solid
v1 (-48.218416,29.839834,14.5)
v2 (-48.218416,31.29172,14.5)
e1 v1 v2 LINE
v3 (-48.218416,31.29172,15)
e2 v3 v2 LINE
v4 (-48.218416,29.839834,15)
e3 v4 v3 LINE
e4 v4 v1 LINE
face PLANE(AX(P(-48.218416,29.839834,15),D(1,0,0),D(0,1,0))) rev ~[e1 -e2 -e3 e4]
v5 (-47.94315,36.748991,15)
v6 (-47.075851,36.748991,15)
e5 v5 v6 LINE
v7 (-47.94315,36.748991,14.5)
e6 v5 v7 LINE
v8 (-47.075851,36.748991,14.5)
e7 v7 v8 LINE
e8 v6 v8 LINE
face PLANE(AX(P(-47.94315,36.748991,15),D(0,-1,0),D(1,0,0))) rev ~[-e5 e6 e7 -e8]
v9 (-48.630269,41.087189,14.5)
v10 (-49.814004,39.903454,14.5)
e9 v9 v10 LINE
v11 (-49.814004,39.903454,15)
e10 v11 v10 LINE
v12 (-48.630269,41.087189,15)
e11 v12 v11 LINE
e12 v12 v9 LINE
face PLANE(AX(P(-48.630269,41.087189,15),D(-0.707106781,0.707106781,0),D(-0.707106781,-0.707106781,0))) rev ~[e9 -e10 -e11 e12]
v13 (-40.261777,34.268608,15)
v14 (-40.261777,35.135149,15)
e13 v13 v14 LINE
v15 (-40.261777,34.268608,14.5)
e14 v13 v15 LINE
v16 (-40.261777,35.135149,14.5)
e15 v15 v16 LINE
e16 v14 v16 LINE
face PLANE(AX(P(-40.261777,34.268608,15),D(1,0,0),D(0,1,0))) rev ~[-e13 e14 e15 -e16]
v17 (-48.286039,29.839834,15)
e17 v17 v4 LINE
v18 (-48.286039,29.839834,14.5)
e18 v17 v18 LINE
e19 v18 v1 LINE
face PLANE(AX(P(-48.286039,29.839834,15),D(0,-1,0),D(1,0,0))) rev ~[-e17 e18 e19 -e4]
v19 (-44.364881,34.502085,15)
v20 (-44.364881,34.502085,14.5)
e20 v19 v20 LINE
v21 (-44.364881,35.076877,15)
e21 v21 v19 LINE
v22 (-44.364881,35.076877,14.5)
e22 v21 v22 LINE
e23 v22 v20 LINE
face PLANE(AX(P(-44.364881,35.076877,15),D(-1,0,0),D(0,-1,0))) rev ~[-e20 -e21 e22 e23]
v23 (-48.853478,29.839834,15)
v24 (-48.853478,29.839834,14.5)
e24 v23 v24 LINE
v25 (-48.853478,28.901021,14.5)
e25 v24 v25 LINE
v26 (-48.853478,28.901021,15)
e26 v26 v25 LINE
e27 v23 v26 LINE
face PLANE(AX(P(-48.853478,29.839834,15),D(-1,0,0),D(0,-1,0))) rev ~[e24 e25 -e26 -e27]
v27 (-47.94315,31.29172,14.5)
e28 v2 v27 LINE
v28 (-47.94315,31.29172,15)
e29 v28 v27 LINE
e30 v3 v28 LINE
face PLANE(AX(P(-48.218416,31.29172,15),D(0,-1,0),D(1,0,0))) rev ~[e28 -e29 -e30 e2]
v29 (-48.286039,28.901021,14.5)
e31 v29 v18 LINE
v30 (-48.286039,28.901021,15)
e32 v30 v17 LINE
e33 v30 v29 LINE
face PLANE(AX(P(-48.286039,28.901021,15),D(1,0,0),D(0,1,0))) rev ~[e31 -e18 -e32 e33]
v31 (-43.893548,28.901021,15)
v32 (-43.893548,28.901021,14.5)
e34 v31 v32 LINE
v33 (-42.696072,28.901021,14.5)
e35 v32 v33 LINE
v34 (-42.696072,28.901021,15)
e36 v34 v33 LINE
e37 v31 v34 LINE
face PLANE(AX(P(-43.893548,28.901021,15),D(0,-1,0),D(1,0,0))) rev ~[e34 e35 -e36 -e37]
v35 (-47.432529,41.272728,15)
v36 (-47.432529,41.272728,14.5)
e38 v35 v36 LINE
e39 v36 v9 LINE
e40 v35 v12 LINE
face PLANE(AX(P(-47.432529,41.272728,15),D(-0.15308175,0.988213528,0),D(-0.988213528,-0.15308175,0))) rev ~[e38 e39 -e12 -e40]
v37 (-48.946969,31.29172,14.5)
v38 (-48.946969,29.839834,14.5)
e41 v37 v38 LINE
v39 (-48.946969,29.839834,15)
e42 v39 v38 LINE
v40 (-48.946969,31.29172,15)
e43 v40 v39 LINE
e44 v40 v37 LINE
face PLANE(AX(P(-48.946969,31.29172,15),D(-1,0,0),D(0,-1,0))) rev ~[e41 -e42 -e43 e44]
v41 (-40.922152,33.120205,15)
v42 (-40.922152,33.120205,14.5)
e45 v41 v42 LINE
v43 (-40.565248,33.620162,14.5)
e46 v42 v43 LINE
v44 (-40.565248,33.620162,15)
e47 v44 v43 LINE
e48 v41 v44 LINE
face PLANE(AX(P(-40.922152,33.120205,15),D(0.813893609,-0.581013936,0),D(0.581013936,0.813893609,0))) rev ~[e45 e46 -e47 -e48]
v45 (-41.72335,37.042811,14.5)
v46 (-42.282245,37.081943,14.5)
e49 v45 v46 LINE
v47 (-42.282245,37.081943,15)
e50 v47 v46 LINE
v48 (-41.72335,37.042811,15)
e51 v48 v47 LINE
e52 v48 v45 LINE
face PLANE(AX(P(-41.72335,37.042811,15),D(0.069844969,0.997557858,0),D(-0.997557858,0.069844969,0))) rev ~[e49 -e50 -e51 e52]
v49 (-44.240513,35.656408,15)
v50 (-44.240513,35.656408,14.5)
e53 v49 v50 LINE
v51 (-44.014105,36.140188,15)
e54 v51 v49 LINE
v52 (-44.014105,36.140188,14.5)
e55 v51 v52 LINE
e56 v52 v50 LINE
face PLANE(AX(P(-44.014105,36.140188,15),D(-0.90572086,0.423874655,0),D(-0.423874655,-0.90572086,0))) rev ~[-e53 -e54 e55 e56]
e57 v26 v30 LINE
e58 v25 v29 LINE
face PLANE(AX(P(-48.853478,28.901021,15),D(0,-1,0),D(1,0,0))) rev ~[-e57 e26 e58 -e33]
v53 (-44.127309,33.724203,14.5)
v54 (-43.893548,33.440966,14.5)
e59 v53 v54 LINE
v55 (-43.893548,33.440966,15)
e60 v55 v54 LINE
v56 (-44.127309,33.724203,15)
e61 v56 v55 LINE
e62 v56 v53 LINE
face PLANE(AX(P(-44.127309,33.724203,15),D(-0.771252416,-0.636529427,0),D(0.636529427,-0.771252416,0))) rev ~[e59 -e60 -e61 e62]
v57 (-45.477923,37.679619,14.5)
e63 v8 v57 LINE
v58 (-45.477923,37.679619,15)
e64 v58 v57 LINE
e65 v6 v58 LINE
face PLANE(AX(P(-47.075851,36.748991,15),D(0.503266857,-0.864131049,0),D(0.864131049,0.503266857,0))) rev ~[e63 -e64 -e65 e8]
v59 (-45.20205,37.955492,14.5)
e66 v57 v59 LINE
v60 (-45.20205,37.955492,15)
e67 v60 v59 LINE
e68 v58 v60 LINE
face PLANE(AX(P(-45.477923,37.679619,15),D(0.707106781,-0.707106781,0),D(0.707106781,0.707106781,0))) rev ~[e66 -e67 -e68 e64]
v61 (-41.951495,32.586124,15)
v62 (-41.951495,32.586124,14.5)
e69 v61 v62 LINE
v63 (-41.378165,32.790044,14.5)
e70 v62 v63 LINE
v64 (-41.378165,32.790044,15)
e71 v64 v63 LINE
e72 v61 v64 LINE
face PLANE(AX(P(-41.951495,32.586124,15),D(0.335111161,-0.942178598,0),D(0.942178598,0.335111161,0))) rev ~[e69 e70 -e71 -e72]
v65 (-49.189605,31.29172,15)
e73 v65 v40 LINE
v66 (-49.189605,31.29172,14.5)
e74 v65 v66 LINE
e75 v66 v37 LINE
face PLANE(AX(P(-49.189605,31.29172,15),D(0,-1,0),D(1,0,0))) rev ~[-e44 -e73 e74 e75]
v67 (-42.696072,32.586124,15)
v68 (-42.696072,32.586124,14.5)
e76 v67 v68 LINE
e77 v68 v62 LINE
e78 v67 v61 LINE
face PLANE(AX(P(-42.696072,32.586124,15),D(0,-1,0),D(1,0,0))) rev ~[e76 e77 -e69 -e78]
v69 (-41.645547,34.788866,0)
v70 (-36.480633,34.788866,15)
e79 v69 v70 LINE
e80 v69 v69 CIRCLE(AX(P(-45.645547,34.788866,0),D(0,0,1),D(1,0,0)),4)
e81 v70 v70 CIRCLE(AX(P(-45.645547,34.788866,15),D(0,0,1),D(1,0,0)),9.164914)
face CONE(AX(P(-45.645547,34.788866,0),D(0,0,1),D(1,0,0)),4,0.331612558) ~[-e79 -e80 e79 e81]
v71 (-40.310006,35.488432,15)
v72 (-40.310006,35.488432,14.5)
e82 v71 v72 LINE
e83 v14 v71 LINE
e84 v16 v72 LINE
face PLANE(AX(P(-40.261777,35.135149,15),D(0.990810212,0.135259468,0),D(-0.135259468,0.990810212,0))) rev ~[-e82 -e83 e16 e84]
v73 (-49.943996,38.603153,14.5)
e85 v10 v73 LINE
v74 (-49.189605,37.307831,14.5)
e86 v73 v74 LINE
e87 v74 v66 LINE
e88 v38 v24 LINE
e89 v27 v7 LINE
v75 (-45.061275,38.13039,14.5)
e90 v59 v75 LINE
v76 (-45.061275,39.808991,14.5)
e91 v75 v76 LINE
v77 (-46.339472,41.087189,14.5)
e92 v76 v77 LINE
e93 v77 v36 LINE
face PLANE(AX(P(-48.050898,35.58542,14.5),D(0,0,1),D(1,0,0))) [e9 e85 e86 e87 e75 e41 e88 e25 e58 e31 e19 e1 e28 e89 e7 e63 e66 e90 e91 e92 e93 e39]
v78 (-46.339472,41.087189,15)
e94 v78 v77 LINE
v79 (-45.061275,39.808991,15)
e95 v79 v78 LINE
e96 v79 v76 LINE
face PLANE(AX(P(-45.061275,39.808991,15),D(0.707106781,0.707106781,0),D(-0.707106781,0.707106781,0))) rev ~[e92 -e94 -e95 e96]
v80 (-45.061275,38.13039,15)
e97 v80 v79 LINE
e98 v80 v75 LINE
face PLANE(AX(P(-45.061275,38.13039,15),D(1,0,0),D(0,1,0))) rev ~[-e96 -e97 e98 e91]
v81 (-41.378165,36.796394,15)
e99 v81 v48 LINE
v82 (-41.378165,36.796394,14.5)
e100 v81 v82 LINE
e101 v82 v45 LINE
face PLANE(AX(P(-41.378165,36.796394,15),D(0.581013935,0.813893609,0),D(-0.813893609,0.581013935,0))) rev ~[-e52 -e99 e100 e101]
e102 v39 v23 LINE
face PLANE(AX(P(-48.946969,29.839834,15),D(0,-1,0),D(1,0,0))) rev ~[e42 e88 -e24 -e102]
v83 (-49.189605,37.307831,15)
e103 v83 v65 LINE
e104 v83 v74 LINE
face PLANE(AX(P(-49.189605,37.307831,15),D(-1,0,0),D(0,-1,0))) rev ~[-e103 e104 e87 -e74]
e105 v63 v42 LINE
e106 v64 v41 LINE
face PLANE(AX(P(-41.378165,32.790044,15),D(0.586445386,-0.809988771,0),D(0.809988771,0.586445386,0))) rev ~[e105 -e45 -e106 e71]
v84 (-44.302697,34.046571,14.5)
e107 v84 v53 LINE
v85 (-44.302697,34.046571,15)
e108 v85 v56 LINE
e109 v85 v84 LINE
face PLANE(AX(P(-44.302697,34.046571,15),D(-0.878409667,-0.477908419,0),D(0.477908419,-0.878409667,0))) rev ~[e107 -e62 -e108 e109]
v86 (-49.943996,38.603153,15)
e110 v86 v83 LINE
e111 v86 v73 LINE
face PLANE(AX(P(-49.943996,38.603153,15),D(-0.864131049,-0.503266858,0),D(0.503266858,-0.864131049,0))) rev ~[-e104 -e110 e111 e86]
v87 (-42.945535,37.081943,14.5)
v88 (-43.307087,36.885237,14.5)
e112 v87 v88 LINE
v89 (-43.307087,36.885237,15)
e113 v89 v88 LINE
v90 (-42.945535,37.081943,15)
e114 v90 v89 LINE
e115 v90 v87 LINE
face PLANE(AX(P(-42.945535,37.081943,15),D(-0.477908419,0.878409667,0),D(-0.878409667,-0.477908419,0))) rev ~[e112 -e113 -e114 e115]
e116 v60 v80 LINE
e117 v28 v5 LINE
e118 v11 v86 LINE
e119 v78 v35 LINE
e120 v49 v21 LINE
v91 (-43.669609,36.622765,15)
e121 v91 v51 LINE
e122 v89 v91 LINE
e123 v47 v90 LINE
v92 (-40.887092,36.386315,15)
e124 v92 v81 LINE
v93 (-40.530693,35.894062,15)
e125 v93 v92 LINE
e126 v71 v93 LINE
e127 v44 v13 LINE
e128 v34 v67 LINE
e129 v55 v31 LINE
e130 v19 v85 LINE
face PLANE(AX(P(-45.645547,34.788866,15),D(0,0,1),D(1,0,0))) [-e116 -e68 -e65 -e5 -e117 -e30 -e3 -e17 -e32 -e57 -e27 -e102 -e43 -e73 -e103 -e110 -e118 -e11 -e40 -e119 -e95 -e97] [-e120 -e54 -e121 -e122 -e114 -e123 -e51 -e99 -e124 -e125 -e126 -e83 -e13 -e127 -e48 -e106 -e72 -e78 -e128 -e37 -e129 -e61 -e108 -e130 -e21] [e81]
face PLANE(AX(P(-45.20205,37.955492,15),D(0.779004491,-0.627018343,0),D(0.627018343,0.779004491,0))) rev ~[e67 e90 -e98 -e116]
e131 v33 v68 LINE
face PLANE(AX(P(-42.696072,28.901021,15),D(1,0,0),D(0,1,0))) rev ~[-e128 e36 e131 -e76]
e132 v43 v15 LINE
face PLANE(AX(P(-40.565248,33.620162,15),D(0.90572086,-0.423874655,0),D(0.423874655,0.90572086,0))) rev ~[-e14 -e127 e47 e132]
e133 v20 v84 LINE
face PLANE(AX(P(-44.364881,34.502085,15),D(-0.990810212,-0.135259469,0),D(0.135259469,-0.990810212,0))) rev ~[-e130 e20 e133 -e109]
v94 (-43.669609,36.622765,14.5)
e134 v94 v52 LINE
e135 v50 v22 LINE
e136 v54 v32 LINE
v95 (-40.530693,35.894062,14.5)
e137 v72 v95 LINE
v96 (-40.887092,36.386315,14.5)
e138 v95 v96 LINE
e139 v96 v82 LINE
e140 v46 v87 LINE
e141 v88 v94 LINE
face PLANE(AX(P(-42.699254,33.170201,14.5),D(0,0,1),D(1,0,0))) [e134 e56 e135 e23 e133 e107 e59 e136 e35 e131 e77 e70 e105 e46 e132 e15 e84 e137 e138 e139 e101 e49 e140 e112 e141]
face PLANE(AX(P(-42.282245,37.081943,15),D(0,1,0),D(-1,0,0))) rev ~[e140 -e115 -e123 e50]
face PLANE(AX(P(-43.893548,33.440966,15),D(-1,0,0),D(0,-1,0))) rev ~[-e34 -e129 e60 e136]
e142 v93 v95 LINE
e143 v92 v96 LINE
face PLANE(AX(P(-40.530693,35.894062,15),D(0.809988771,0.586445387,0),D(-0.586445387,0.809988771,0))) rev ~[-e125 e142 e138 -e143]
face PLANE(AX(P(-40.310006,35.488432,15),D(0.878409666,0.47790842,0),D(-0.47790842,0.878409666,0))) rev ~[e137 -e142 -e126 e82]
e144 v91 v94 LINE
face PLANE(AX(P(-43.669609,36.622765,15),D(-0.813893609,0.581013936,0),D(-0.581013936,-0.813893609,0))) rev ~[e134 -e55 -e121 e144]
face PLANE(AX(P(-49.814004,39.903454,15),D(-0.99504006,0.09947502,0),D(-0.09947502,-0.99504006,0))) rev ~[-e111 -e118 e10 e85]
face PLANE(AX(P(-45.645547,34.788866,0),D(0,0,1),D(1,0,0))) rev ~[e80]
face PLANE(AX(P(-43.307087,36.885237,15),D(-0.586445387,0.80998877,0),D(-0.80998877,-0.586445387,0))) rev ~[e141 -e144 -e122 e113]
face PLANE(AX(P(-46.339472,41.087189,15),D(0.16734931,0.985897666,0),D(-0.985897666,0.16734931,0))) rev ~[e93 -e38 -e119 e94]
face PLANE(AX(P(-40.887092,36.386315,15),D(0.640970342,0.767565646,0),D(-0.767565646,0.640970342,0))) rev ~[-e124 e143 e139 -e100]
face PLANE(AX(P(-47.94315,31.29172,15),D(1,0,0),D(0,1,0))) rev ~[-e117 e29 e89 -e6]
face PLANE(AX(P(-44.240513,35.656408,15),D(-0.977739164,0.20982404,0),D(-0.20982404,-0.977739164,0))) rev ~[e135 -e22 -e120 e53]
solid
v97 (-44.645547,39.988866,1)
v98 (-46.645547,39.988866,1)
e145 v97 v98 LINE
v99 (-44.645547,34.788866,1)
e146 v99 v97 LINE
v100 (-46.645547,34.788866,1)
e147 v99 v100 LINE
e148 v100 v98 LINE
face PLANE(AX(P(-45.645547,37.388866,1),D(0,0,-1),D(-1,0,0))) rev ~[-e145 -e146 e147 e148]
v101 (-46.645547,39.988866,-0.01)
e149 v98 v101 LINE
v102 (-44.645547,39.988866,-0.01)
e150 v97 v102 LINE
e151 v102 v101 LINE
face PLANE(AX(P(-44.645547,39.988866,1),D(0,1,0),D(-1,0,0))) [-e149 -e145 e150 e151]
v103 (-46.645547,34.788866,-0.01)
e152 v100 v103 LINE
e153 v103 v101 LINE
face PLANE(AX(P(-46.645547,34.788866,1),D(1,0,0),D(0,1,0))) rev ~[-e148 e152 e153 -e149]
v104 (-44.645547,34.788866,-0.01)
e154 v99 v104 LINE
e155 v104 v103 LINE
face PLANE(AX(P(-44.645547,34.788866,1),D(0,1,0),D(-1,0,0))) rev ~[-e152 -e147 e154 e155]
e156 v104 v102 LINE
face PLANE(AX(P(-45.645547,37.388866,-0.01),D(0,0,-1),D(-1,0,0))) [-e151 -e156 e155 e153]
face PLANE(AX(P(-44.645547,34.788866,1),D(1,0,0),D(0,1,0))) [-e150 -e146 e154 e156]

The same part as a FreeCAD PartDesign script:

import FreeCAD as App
import Part
import Sketcher
from FreeCAD import Vector
Q = App.Units.Quantity


def faces_at(feature, points):
    """Names of the faces that lie closest to the given points."""
    faces = feature.Shape.Faces
    near = lambda p: min(range(len(faces)), key=lambda i: faces[i].distToShape(Part.Vertex(*p))[0])
    return sorted({f"Face{near(p) + 1}" for p in points})


def add_polygon(sketch, points):
    """Adds a closed chain of lines whose ends are joined by coincident constraints."""
    first, n = sketch.GeometryCount, len(points)
    for a, b in zip(points, points[1:] + points[:1]):
        sketch.addGeometry(Part.LineSegment(App.Vector(*a, 0), App.Vector(*b, 0)), False)
    for i in range(n):
        sketch.addConstraint(Sketcher.Constraint("Coincident", first + i, 2, first + (i + 1) % n, 1))

doc = App.newDocument("Part")
params = doc.addObject("Spreadsheet::Sheet", "Params")
for row, (alias, value) in enumerate([
    ("sketch1_diameter", "8 mm"),
    ("pad1_length", "15 mm"),
    ("draft_angle", "19 deg"),
    ("pocket1_length", "0.5 mm"),
    ("sketch3_width", "2 mm"),
    ("sketch3_height", "5.2 mm"),
    ("pad2_length", "0.01 mm"),
    ("pad2_length2", "1 mm"),
], start=1):
    params.set(f"A{row}", alias)
    params.set(f"B{row}", "=" + value)
    params.setAlias(f"B{row}", alias)

body = doc.addObject("PartDesign::Body", "Body")

sketch1 = body.newObject("Sketcher::SketchObject", "Sketch")
sketch1.AttachmentSupport = (doc.getObject("XY_Plane"), [""])
sketch1.MapMode = "FlatFace"
sketch1.addGeometry(Part.Circle(Vector(-45.645547, 34.788866, 0), Vector(0, 0, 1), 4), False)
sketch1.addConstraint([
    Sketcher.Constraint("Diameter", 0, Q("8 mm")),
    Sketcher.Constraint("DistanceX", 0, 3, -1, 1, Q("45.645547 mm")),
    Sketcher.Constraint("DistanceY", -1, 1, 0, 3, Q("34.788866 mm")),
])
sketch1.setExpression("Constraints[0]", "Params.sketch1_diameter")
pad1 = body.newObject("PartDesign::Pad", "Pad")
pad1.Profile = sketch1
pad1.setExpression("Length", "Params.pad1_length")
doc.recompute()

draft = body.newObject("PartDesign::Draft", "Draft")
draft.Base = (pad1, faces_at(pad1, [(-49.646, 34.789, 7.5)]))
draft.NeutralPlane = (doc.getObject("XY_Plane"), [""])
draft.setExpression("Angle", "Params.draft_angle")
draft.Reversed = True

sketch2 = body.newObject("Sketcher::SketchObject", "Sketch001")
sketch2.AttachmentSupport = (doc.getObject("XY_Plane"), [""])
sketch2.MapMode = "FlatFace"
sketch2.AttachmentOffset = App.Placement(Vector(0, 0, 15), App.Rotation())
add_polygon(sketch2, [(-49.943996, 38.603153), (-49.189605, 37.307831), (-49.189605, 31.29172), (-48.946969, 31.29172), (-48.946969, 29.839834), (-48.853478, 29.839834), (-48.853478, 28.901021), (-48.286039, 28.901021), (-48.286039, 29.839834), (-48.218416, 29.839834), (-48.218416, 31.29172), (-47.94315, 31.29172), (-47.94315, 36.748991), (-47.075851, 36.748991), (-45.477923, 37.679619), (-45.20205, 37.955492), (-45.061275, 38.13039), (-45.061275, 39.808991), (-46.339472, 41.087189), (-47.432529, 41.272728), (-48.630269, 41.087189), (-49.814004, 39.903454)])
add_polygon(sketch2, [(-42.696072, 28.901021), (-42.696072, 32.586124), (-41.951495, 32.586124), (-41.378165, 32.790044), (-40.922152, 33.120205), (-40.565248, 33.620162), (-40.261777, 34.268608), (-40.261777, 35.135149), (-40.310006, 35.488432), (-40.530693, 35.894062), (-40.887092, 36.386315), (-41.378165, 36.796394), (-41.72335, 37.042811), (-42.282245, 37.081943), (-42.945535, 37.081943), (-43.307087, 36.885237), (-43.669609, 36.622765), (-44.014105, 36.140188), (-44.240513, 35.656408), (-44.364881, 35.076877), (-44.364881, 34.502085), (-44.302697, 34.046571), (-44.127309, 33.724203), (-43.893548, 33.440966), (-43.893548, 28.901021)])
sketch2.addConstraint([
    Sketcher.Constraint("Vertical", 1),
    Sketcher.Constraint("Horizontal", 2),
    Sketcher.Constraint("Vertical", 3),
    Sketcher.Constraint("Horizontal", 4),
    Sketcher.Constraint("Vertical", 5),
    Sketcher.Constraint("Horizontal", 6),
    Sketcher.Constraint("Vertical", 7),
    Sketcher.Constraint("Horizontal", 8),
    Sketcher.Constraint("Vertical", 9),
    Sketcher.Constraint("Horizontal", 10),
    Sketcher.Constraint("Vertical", 11),
    Sketcher.Constraint("Horizontal", 12),
    Sketcher.Constraint("Vertical", 16),
    Sketcher.Constraint("Vertical", 22),
    Sketcher.Constraint("Horizontal", 23),
    Sketcher.Constraint("Vertical", 28),
    Sketcher.Constraint("Horizontal", 35),
    Sketcher.Constraint("Vertical", 41),
    Sketcher.Constraint("Vertical", 45),
    Sketcher.Constraint("Horizontal", 46),
    Sketcher.Constraint("Perpendicular", 0, 13),
    Sketcher.Constraint("Perpendicular", 14, 17),
    Sketcher.Constraint("Perpendicular", 17, 20),
    Sketcher.Constraint("Perpendicular", 25, 31),
    Sketcher.Constraint("Perpendicular", 26, 33),
    Sketcher.Constraint("Perpendicular", 30, 36),
    Sketcher.Constraint("Perpendicular", 31, 37),
    Sketcher.Constraint("Perpendicular", 33, 38),
    Sketcher.Constraint("Parallel", 27, 39),
    Sketcher.Constraint("Parallel", 29, 42),
    Sketcher.Constraint("Perpendicular", 36, 43),
    Sketcher.Constraint("Horizontal", 4, 2, 7, 2),
    Sketcher.Constraint("Horizontal", 2, 2, 9, 2),
    Sketcher.Constraint("Horizontal", 17, 2, 19, 2),
    Sketcher.Constraint("Horizontal", 6, 2, 45, 2),
    Sketcher.Constraint("Vertical", 24, 2, 32, 2),
    Sketcher.Constraint("Angle", 14, Q("45 deg")),
    Sketcher.Constraint("DistanceY", 12, 2, 16, 2, Q("3.06 mm")),
    Sketcher.Constraint("DistanceX", 12, 1, 12, 2, Q("0.867299 mm")),
    Sketcher.Constraint("DistanceY", 16, 1, 16, 2, Q("1.678601 mm")),
    Sketcher.Constraint("DistanceX", 4, 1, 4, 2, Q("0.093491 mm")),
    Sketcher.Constraint("DistanceX", 6, 1, 6, 2, Q("0.567439 mm")),
    Sketcher.Constraint("DistanceX", 35, 2, 35, 1, Q("0.66329 mm")),
    Sketcher.Constraint("DistanceY", 1, 2, 1, 1, Q("6.01611 mm")),
    Sketcher.Constraint("DistanceY", 11, 1, 11, 2, Q("5.457271 mm")),
    Sketcher.Constraint("DistanceY", 28, 1, 28, 2, Q("0.86654 mm")),
    Sketcher.Constraint("DistanceY", 5, 2, 2, 2, Q("2.3907 mm")),
    Sketcher.Constraint("DistanceY", 10, 2, 13, 2, Q("6.387898 mm")),
    Sketcher.Constraint("DistanceX", 12, 2, 14, 2, Q("1.873801 mm")),
    Sketcher.Constraint("DistanceY", 12, 2, 14, 2, Q("1.206501 mm")),
    Sketcher.Constraint("DistanceY", 15, 2, 17, 2, Q("2.956798 mm")),
    Sketcher.Constraint("DistanceX", 20, 2, 0, 2, Q("0.624399 mm")),
    Sketcher.Constraint("DistanceY", 21, 2, 20, 2, Q("1.3003 mm")),
    Sketcher.Constraint("DistanceX", 14, 2, 26, 2, Q("4.636802 mm")),
    Sketcher.Constraint("DistanceY", 26, 2, 30, 2, Q("2.2739 mm")),
    Sketcher.Constraint("DistanceX", 31, 2, 30, 2, Q("0.3564 mm")),
    Sketcher.Constraint("Distance", 0, Q("1.498989 mm")),
    Sketcher.Constraint("Distance", 26, Q("0.614278 mm")),
    Sketcher.Constraint("Distance", 29, Q("0.35656 mm")),
    Sketcher.Constraint("Distance", 31, Q("0.607729 mm")),
    Sketcher.Constraint("Distance", 32, Q("0.639779 mm")),
    Sketcher.Constraint("Distance", 39, Q("0.534139 mm")),
    Sketcher.Constraint("Distance", 42, Q("0.459739 mm")),
    Sketcher.Constraint("Distance", 43, Q("0.366991 mm")),
    Sketcher.Constraint("DistanceX", 2, 1, 2, 2, Q("0.242635 mm")),
    Sketcher.Constraint("DistanceX", 8, 1, 8, 2, Q("0.067622 mm")),
    Sketcher.Constraint("DistanceX", 10, 1, 10, 2, Q("0.275266 mm")),
    Sketcher.Constraint("DistanceX", 23, 1, 23, 2, Q("0.744577 mm")),
    Sketcher.Constraint("DistanceX", 46, 1, 46, 2, Q("1.197476 mm")),
    Sketcher.Constraint("DistanceY", 3, 2, 3, 1, Q("1.451886 mm")),
    Sketcher.Constraint("DistanceY", 22, 1, 22, 2, Q("3.685103 mm")),
    Sketcher.Constraint("DistanceY", 41, 2, 41, 1, Q("0.574792 mm")),
    Sketcher.Constraint("DistanceY", 45, 2, 45, 1, Q("4.539945 mm")),
    Sketcher.Constraint("DistanceY", -1, 1, 0, 2, Q("37.307831 mm")),
    Sketcher.Constraint("DistanceX", 2, 2, -1, 1, Q("48.946969 mm")),
    Sketcher.Constraint("DistanceX", 18, 2, -1, 1, Q("47.432529 mm")),
    Sketcher.Constraint("DistanceY", -1, 1, 26, 2, Q("33.620162 mm")),
    Sketcher.Constraint("DistanceY", -1, 1, 27, 2, Q("34.268608 mm")),
    Sketcher.Constraint("DistanceX", 33, 2, -1, 1, Q("41.72335 mm")),
    Sketcher.Constraint("DistanceY", -1, 1, 33, 2, Q("37.042811 mm")),
    Sketcher.Constraint("DistanceX", 37, 2, -1, 1, Q("43.669609 mm")),
    Sketcher.Constraint("DistanceY", -1, 1, 38, 2, Q("36.140188 mm")),
    Sketcher.Constraint("DistanceX", 40, 2, -1, 1, Q("44.364881 mm")),
    Sketcher.Constraint("DistanceY", -1, 1, 42, 2, Q("34.046571 mm")),
    Sketcher.Constraint("DistanceX", 43, 2, -1, 1, Q("44.127309 mm")),
    Sketcher.Constraint("DistanceX", 44, 2, -1, 1, Q("43.893548 mm")),
    Sketcher.Constraint("DistanceX", 13, 2, 15, 2, Q("0.416649 mm")),
    Sketcher.Constraint("DistanceY", 17, 2, 18, 2, Q("0.185539 mm")),
    Sketcher.Constraint("DistanceX", 23, 2, 24, 2, Q("0.573331 mm")),
    Sketcher.Constraint("DistanceY", 23, 2, 24, 2, Q("0.20392 mm")),
    Sketcher.Constraint("DistanceX", 26, 2, 27, 2, Q("0.303471 mm")),
    Sketcher.Constraint("DistanceY", 33, 2, 34, 2, Q("0.039132 mm")),
    Sketcher.Constraint("DistanceX", 34, 2, 32, 2, Q("0.904081 mm")),
    Sketcher.Constraint("DistanceX", 36, 2, 35, 2, Q("0.361552 mm")),
])
pocket1 = body.newObject("PartDesign::Pocket", "Pocket")
pocket1.Profile = sketch2
pocket1.setExpression("Length", "Params.pocket1_length")
body2 = doc.addObject("PartDesign::Body", "Body001")

sketch3 = body2.newObject("Sketcher::SketchObject", "Sketch002")
sketch3.AttachmentSupport = (doc.getObject("XY_Plane001"), [""])
sketch3.MapMode = "FlatFace"
add_polygon(sketch3, [(-44.645547, 39.988866), (-44.645547, 34.788866), (-46.645547, 34.788866), (-46.645547, 39.988866)])
sketch3.addConstraint([
    Sketcher.Constraint("Vertical", 0),
    Sketcher.Constraint("Horizontal", 1),
    Sketcher.Constraint("Vertical", 2),
    Sketcher.Constraint("Horizontal", 3),
    Sketcher.Constraint("DistanceX", 1, 2, 1, 1, Q("2 mm")),
    Sketcher.Constraint("DistanceY", 0, 2, 0, 1, Q("5.2 mm")),
    Sketcher.Constraint("DistanceX", 0, 2, -1, 1, Q("44.645547 mm")),
    Sketcher.Constraint("DistanceY", -1, 1, 0, 2, Q("34.788866 mm")),
])
sketch3.setExpression("Constraints[8]", "Params.sketch3_width")
sketch3.setExpression("Constraints[9]", "Params.sketch3_height")
pad2 = body2.newObject("PartDesign::Pad", "Pad001")
pad2.Profile = sketch3
pad2.Type = "TwoLengths"
pad2.setExpression("Length", "Params.pad2_length")
pad2.setExpression("Length2", "Params.pad2_length2")
pad2.Reversed = True

doc.recompute()
